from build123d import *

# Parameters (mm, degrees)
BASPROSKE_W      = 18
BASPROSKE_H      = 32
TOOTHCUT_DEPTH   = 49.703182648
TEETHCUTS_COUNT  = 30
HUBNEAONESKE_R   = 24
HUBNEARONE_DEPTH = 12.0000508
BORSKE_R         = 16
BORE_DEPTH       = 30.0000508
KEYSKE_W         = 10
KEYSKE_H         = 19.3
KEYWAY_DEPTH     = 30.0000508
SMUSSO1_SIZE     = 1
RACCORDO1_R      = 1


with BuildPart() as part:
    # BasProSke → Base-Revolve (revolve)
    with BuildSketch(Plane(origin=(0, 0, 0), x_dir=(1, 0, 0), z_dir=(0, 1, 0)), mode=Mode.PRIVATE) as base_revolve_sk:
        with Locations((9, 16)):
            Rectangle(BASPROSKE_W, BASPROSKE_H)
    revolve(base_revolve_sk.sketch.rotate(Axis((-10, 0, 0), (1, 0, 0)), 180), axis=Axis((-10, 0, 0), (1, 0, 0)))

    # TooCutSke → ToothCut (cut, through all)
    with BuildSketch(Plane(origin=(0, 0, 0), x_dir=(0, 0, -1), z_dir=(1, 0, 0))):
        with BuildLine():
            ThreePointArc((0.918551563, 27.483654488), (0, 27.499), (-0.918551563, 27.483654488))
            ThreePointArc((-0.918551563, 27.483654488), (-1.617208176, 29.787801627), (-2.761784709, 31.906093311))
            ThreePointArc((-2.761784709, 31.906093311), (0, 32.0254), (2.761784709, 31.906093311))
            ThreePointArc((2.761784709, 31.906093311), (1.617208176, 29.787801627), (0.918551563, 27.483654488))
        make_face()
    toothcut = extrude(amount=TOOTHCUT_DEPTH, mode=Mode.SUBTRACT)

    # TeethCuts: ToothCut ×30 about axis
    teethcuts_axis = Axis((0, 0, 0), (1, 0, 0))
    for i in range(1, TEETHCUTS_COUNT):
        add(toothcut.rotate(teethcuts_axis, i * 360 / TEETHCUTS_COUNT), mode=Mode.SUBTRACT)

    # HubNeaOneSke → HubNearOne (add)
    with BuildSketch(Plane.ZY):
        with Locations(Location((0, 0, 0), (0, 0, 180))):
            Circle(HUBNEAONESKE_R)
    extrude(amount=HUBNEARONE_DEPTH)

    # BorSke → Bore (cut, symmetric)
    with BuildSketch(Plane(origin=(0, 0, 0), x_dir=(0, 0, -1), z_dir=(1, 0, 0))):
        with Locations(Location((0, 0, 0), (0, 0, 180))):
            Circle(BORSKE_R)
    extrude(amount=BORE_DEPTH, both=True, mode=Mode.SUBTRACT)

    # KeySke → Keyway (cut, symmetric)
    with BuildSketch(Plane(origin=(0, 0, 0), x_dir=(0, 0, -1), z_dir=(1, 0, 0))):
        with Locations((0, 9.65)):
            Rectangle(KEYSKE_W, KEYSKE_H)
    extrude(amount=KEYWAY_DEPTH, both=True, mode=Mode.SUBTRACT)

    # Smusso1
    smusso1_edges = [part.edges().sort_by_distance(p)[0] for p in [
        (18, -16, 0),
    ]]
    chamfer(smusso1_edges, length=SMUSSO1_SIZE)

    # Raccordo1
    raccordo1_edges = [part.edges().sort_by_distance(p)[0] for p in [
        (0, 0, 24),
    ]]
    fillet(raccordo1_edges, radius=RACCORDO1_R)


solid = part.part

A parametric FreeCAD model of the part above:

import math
import FreeCAD as App
import Part
import Sketcher
from FreeCAD import Vector
Q = App.Units.Quantity


def edges_at(feature, points):
    """Names of the edges that pass closest to the given points."""
    edges = feature.Shape.Edges
    near = lambda p: min(range(len(edges)), key=lambda i: edges[i].distToShape(Part.Vertex(*p))[0])
    return sorted({f"Edge{near(p) + 1}" for p in points})


def add_polygon(sketch, points):
    """Adds a closed chain of lines whose ends are joined by coincident constraints."""
    first, n = sketch.GeometryCount, len(points)
    for a, b in zip(points, points[1:] + points[:1]):
        sketch.addGeometry(Part.LineSegment(App.Vector(*a, 0), App.Vector(*b, 0)), False)
    for i in range(n):
        sketch.addConstraint(Sketcher.Constraint("Coincident", first + i, 2, first + (i + 1) % n, 1))

doc = App.newDocument("Part")
body = doc.addObject("PartDesign::Body", "Body")

# Sketch on XZ plane
sketch1 = body.newObject("Sketcher::SketchObject", "Sketch")
sketch1.AttachmentSupport = (doc.getObject("XZ_Plane"), [""])
sketch1.MapMode = "FlatFace"
add_polygon(sketch1, [(0, -32), (0, 0), (18, 0), (18, -32)])  # lines 0-3
sketch1.addConstraint([
    Sketcher.Constraint("Vertical", 0),
    Sketcher.Constraint("Horizontal", 1),
    Sketcher.Constraint("Vertical", 2),
    Sketcher.Constraint("Horizontal", 3),
    Sketcher.Constraint("Coincident", 0, 2, -1, 1),
    Sketcher.Constraint("DistanceX", 1, 1, 1, 2, Q("18 mm")),
    Sketcher.Constraint("DistanceY", 0, 1, 0, 2, Q("32 mm")),
])
revolution = body.newObject("PartDesign::Revolution", "Revolution")
revolution.Profile = sketch1
revolution.ReferenceAxis = (sketch1, ["H_Axis"])
revolution.Angle = 360

# Sketch on YZ plane
sketch2 = body.newObject("Sketcher::SketchObject", "Sketch001")
sketch2.AttachmentSupport = (doc.getObject("YZ_Plane"), [""])
sketch2.MapMode = "FlatFace"
sketch2.addGeometry([
    Part.ArcOfCircle(Part.Circle(Vector(0, 0, 0), Vector(0, 0, 1), 27.5), math.radians(-1.91), math.radians(1.91)),
    Part.ArcOfCircle(Part.Circle(Vector(25.2, -12.7, 0), Vector(0, 0, 1), 12), math.radians(56), math.radians(79)),
    Part.ArcOfCircle(Part.Circle(Vector(0, 0, 0), Vector(0, 0, 1), 32), math.radians(-4.95), math.radians(4.95)),
    Part.ArcOfCircle(Part.Circle(Vector(25.2, 12.7, 0), Vector(0, 0, 1), 12), math.radians(-79), math.radians(-56)),
], False)
sketch2.addConstraint([
    Sketcher.Constraint("Coincident", 0, 1, 1, 2),
    Sketcher.Constraint("Coincident", 1, 1, 2, 1),
    Sketcher.Constraint("Coincident", 2, 2, 3, 2),
    Sketcher.Constraint("Coincident", 3, 1, 0, 2),
    Sketcher.Constraint("Coincident", 0, 3, -1, 1),
    Sketcher.Constraint("Coincident", 2, 3, -1, 1),
    Sketcher.Constraint("Equal", 1, 3),
    Sketcher.Constraint("Symmetric", 1, 3, 3, 3, -1),
    Sketcher.Constraint("Radius", 1, Q("12 mm")),
    Sketcher.Constraint("Radius", 0, Q("27.499 mm")),
    Sketcher.Constraint("Radius", 2, Q("32.0254 mm")),
    Sketcher.Constraint("DistanceY", 1, 3, -1, 1, Q("12.693642 mm")),
    Sketcher.Constraint("DistanceY", 0, 1, -1, 1, Q("0.918552 mm")),
])
pocket1 = body.newObject("PartDesign::Pocket", "Pocket")
pocket1.Profile = sketch2
pocket1.Type = "ThroughAll"
pocket1.Reversed = True
doc.recompute()

polarpattern = body.newObject("PartDesign::PolarPattern", "PolarPattern")
polarpattern.Originals = [pocket1]
polarpattern.Axis = (doc.getObject("X_Axis"), [""])
polarpattern.Angle = 360
polarpattern.Occurrences = 30
body.Tip = polarpattern

# Sketch on YZ plane
sketch3 = body.newObject("Sketcher::SketchObject", "Sketch002")
sketch3.AttachmentSupport = (doc.getObject("YZ_Plane"), [""])
sketch3.MapMode = "FlatFace"
sketch3.addGeometry(Part.Circle(Vector(0, 0, 0), Vector(0, 0, 1), 24), False)
sketch3.addConstraint([
    Sketcher.Constraint("Coincident", 0, 3, -1, 1),
    Sketcher.Constraint("Diameter", 0, Q("48 mm")),
])
pad1 = body.newObject("PartDesign::Pad", "Pad")
pad1.Profile = sketch3
pad1.Length = 12.000051
pad1.Reversed = True

# Sketch on YZ plane
sketch4 = body.newObject("Sketcher::SketchObject", "Sketch003")
sketch4.AttachmentSupport = (doc.getObject("YZ_Plane"), [""])
sketch4.MapMode = "FlatFace"
sketch4.addGeometry(Part.Circle(Vector(0, 0, 0), Vector(0, 0, 1), 16), False)
sketch4.addConstraint([
    Sketcher.Constraint("Coincident", 0, 3, -1, 1),
    Sketcher.Constraint("Diameter", 0, Q("32 mm")),
])
pocket2 = body.newObject("PartDesign::Pocket", "Pocket001")
pocket2.Profile = sketch4
pocket2.Length = 60.000102
pocket2.Midplane = True

# Sketch on YZ plane
sketch5 = body.newObject("Sketcher::SketchObject", "Sketch004")
sketch5.AttachmentSupport = (doc.getObject("YZ_Plane"), [""])
sketch5.MapMode = "FlatFace"
add_polygon(sketch5, [(19, 5), (0, 5), (0, -5), (19, -5)])  # lines 0-3
sketch5.addConstraint([
    Sketcher.Constraint("Horizontal", 0),
    Sketcher.Constraint("Vertical", 1),
    Sketcher.Constraint("Horizontal", 2),
    Sketcher.Constraint("Vertical", 3),
    Sketcher.Constraint("Symmetric", 0, 2, 1, 2, -1, 1),
    Sketcher.Constraint("DistanceY", 1, 2, 1, 1, Q("10 mm")),
    Sketcher.Constraint("DistanceX", 0, 2, 0, 1, Q("19.3 mm")),
])
pocket3 = body.newObject("PartDesign::Pocket", "Pocket002")
pocket3.Profile = sketch5
pocket3.Length = 60.000102
pocket3.Midplane = True
doc.recompute()

chamfer = body.newObject("PartDesign::Chamfer", "Chamfer")
chamfer.Base = (pocket3, edges_at(pocket3, [(18, -16, 0)]))
chamfer.Size = 1
doc.recompute()

fillet = body.newObject("PartDesign::Fillet", "Fillet")
fillet.Base = (chamfer, edges_at(chamfer, [(0, 0, 24)]))
fillet.Radius = 1

doc.recompute()
